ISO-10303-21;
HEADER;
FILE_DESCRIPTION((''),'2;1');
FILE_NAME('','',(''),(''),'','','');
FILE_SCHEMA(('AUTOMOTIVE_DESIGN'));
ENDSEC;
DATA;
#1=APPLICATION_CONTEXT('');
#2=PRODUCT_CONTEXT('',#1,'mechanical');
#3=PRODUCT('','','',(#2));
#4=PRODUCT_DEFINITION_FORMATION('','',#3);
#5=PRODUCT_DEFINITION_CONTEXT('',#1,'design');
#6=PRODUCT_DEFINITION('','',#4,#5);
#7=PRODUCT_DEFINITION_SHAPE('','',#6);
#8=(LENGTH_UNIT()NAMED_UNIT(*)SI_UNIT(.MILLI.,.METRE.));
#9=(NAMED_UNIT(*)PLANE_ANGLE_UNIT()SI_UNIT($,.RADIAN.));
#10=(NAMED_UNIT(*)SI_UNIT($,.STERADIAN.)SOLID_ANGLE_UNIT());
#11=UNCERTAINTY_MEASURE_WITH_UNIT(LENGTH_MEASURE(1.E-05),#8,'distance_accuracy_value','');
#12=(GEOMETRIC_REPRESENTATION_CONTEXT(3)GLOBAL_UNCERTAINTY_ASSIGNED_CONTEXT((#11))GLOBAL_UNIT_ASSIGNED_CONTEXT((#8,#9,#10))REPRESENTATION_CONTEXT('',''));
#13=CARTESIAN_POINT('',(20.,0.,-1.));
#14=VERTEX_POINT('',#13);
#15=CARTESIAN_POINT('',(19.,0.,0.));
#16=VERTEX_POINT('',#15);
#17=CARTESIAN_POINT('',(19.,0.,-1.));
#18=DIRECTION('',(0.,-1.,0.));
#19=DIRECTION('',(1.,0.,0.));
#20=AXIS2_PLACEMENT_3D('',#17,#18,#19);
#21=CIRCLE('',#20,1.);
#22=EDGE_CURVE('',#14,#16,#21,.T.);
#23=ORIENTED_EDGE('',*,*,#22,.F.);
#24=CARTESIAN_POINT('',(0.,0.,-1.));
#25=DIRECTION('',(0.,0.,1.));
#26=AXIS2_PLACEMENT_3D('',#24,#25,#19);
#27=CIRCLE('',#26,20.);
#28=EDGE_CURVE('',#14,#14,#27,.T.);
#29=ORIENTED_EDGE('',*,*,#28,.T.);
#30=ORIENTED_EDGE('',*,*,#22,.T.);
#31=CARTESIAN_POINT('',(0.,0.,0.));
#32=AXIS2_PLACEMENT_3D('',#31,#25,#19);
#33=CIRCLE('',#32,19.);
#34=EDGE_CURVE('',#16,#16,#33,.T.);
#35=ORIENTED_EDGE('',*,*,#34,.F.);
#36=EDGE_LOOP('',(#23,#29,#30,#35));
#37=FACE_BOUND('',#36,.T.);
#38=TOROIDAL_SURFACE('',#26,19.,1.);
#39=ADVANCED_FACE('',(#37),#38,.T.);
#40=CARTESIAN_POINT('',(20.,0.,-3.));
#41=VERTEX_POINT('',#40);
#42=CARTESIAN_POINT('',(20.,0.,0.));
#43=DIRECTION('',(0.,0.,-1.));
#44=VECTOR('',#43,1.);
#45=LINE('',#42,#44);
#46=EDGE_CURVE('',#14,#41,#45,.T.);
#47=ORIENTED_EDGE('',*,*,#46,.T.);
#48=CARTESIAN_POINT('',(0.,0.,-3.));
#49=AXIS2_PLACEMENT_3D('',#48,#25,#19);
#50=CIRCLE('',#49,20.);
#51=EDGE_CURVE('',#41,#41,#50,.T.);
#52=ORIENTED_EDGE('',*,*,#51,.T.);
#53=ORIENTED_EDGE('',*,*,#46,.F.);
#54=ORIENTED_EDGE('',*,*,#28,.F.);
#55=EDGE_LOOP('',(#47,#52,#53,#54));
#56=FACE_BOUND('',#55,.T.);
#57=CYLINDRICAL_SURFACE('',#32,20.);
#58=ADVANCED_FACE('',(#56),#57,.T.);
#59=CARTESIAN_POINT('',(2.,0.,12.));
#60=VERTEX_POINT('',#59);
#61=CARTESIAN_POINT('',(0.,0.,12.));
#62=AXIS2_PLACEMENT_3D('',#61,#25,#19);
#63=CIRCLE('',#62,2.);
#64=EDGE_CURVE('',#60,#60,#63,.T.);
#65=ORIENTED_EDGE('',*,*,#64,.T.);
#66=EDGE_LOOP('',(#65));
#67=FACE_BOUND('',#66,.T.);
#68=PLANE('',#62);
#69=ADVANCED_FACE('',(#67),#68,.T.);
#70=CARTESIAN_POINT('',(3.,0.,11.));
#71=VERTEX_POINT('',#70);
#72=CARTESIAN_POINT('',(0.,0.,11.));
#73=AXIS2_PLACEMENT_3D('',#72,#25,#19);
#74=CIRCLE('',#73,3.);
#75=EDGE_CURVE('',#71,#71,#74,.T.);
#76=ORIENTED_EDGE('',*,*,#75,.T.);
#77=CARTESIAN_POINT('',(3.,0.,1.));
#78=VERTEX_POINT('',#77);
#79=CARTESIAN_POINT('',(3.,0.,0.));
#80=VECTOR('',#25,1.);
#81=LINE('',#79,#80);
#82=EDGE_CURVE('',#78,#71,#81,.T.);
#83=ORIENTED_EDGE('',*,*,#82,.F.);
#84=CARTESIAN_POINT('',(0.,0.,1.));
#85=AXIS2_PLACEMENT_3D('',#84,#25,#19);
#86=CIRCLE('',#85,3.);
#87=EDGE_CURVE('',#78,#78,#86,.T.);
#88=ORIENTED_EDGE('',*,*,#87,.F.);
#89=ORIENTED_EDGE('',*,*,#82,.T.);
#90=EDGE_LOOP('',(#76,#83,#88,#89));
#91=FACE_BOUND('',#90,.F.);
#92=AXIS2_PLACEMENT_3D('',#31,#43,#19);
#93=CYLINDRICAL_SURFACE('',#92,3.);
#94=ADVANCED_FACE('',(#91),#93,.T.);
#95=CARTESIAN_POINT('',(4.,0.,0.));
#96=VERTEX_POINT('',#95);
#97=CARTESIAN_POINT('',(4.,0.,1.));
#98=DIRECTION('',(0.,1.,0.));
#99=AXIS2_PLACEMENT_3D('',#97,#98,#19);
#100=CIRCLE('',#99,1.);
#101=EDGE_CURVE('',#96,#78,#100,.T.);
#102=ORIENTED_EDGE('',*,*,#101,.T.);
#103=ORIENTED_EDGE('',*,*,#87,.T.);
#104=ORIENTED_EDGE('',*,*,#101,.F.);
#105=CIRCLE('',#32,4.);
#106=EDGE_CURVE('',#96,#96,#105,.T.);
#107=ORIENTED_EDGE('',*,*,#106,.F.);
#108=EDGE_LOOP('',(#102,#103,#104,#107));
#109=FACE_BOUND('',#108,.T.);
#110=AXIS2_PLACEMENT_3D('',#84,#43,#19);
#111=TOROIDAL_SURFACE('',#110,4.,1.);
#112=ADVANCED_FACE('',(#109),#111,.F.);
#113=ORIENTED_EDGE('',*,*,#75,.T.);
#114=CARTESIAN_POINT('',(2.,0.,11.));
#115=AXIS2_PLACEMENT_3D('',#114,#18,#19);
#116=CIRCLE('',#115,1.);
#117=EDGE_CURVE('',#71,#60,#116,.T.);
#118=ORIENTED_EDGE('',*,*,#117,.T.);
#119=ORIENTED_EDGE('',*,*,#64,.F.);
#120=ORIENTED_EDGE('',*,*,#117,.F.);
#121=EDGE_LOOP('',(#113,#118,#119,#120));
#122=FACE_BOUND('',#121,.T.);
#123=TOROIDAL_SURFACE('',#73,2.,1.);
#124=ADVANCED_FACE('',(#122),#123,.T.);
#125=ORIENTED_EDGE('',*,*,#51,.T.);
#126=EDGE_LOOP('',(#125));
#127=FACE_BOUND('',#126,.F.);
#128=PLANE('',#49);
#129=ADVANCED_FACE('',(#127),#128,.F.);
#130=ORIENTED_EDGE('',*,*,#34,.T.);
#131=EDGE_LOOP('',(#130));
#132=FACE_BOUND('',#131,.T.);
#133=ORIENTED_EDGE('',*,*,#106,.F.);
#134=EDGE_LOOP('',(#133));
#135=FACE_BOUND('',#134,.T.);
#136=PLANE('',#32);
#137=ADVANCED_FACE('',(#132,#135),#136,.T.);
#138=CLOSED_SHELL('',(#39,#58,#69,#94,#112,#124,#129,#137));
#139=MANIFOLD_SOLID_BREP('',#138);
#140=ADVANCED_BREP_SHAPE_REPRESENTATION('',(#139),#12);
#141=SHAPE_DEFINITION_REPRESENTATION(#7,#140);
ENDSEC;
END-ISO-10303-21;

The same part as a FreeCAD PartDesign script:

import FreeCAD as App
import Part
import Sketcher


def edges_at(feature, points):
    """Names of the edges that pass closest to the given points."""
    edges = feature.Shape.Edges
    near = lambda p: min(range(len(edges)), key=lambda i: edges[i].distToShape(Part.Vertex(*p))[0])
    return sorted({f"Edge{near(p) + 1}" for p in points})

doc = App.newDocument("Part")
body = doc.addObject("PartDesign::Body", "Body")

sketch1 = body.newObject("Sketcher::SketchObject", "Sketch")
sketch1.AttachmentSupport = (doc.getObject("XY_Plane"), [""])
sketch1.MapMode = "FlatFace"
sketch1.addGeometry(Part.Circle(App.Vector(0, 0, 0), App.Vector(0, 0, 1), 20), False)
sketch1.addConstraint(Sketcher.Constraint("Coincident", 0, 3, -1, 1))
sketch1.addConstraint(Sketcher.Constraint("Diameter", 0, 40.0))
pad1 = body.newObject("PartDesign::Pad", "Pad")
pad1.Profile = sketch1
pad1.Length = 3
pad1.Reversed = True

sketch2 = body.newObject("Sketcher::SketchObject", "Sketch001")
sketch2.AttachmentSupport = (doc.getObject("XY_Plane"), [""])
sketch2.MapMode = "FlatFace"
sketch2.addGeometry(Part.Circle(App.Vector(0, 0, 0), App.Vector(0, 0, 1), 3), False)
sketch2.addConstraint(Sketcher.Constraint("Coincident", 0, 3, -1, 1))
sketch2.addConstraint(Sketcher.Constraint("Diameter", 0, 6.0))
pad2 = body.newObject("PartDesign::Pad", "Pad001")
pad2.Profile = sketch2
pad2.Length = 12
doc.recompute()

fillet = body.newObject("PartDesign::Fillet", "Fillet")
fillet.Base = (pad2, edges_at(pad2, [(-20, 0, 0), (-3, 0, 12), (-3, 0, 0)]))
fillet.Radius = 1

doc.recompute()
